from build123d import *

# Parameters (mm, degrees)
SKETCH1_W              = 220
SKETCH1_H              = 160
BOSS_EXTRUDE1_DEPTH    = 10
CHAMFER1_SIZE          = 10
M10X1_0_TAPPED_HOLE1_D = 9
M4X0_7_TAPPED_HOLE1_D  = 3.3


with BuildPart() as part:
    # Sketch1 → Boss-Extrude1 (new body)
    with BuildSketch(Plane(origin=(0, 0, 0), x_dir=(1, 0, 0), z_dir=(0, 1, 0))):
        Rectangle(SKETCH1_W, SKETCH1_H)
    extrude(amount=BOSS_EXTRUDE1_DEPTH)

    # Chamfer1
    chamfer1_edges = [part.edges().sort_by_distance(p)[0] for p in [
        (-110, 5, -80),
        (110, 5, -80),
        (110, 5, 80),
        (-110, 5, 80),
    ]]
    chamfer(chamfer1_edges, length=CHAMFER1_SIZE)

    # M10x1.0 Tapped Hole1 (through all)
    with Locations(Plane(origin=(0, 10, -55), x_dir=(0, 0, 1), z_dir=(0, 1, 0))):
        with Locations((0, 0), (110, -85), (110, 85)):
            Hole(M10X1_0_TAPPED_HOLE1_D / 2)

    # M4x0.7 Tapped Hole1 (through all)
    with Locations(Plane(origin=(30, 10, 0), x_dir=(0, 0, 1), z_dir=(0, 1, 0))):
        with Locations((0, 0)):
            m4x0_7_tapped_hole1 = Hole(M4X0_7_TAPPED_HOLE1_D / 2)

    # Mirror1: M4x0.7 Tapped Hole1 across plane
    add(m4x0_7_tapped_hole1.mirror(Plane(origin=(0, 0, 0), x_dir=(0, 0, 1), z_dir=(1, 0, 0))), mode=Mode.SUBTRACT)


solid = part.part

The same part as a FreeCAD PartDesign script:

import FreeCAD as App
import Part
import Sketcher
from FreeCAD import Vector


def edges_at(feature, points):
    """Names of the edges that pass closest to the given points."""
    edges = feature.Shape.Edges
    near = lambda p: min(range(len(edges)), key=lambda i: edges[i].distToShape(Part.Vertex(*p))[0])
    return sorted({f"Edge{near(p) + 1}" for p in points})


def add_polygon(sketch, points):
    """Adds a closed chain of lines whose ends are joined by coincident constraints."""
    first, n = sketch.GeometryCount, len(points)
    for a, b in zip(points, points[1:] + points[:1]):
        sketch.addGeometry(Part.LineSegment(App.Vector(*a, 0), App.Vector(*b, 0)), False)
    for i in range(n):
        sketch.addConstraint(Sketcher.Constraint("Coincident", first + i, 2, first + (i + 1) % n, 1))

doc = App.newDocument("Part")
params = doc.addObject("Spreadsheet::Sheet", "Params")
for row, (alias, value) in enumerate([
    ("sketch1_width", "220 mm"),
    ("sketch1_height", "160 mm"),
    ("pad1_length", "10 mm"),
    ("chamfer_size", "10 mm"),
    ("sketch2_diameter", "9 mm"),
    ("hole_diameter", "9 mm"),
    ("sketch3_diameter", "3.3 mm"),
    ("hole2_diameter", "3.3 mm"),
], start=1):
    params.set(f"A{row}", alias)
    params.set(f"B{row}", "=" + value)
    params.setAlias(f"B{row}", alias)

body = doc.addObject("PartDesign::Body", "Body")

# Sketch on XZ plane
sketch1 = body.newObject("Sketcher::SketchObject", "Sketch")
sketch1.AttachmentSupport = (doc.getObject("XZ_Plane"), [""])
sketch1.MapMode = "FlatFace"
add_polygon(sketch1, [(-110, -80), (-110, 80), (110, 80), (110, -80)])  # lines 0-3
sketch1.addConstraint(Sketcher.Constraint("Vertical", 0))
sketch1.addConstraint(Sketcher.Constraint("Horizontal", 1))
sketch1.addConstraint(Sketcher.Constraint("Vertical", 2))
sketch1.addConstraint(Sketcher.Constraint("Horizontal", 3))
sketch1.addConstraint(Sketcher.Constraint("Symmetric", 0, 2, 2, 2, -1, 1))
sketch1.addConstraint(Sketcher.Constraint("DistanceX", 1, 1, 1, 2, 220.0))
sketch1.addConstraint(Sketcher.Constraint("DistanceY", 0, 1, 0, 2, 160.0))
sketch1.setExpression("Constraints[9]", "Params.sketch1_width")
sketch1.setExpression("Constraints[10]", "Params.sketch1_height")
pad1 = body.newObject("PartDesign::Pad", "Pad")
pad1.Profile = sketch1
pad1.setExpression("Length", "Params.pad1_length")
pad1.Reversed = True
doc.recompute()

chamfer = body.newObject("PartDesign::Chamfer", "Chamfer")
chamfer.Base = (pad1, edges_at(pad1, [
    (-110, 5, -80),
    (110, 5, -80),
    (110, 5, 80),
    (-110, 5, 80),
]))
chamfer.setExpression("Size", "Params.chamfer_size")

# Sketch on XZ plane
sketch2 = body.newObject("Sketcher::SketchObject", "Sketch001")
sketch2.AttachmentSupport = (doc.getObject("XZ_Plane"), [""])
sketch2.MapMode = "FlatFace"
sketch2.AttachmentOffset = App.Placement(Vector(0, 0, -10), App.Rotation())
sketch2.addGeometry(Part.Circle(Vector(0, -55, 0), Vector(0, 0, 1), 4.5), False)
sketch2.addGeometry(Part.Circle(Vector(-85, 55, 0), Vector(0, 0, 1), 4.5), False)
sketch2.addGeometry(Part.Circle(Vector(85, 55, 0), Vector(0, 0, 1), 4.5), False)
sketch2.addConstraint(Sketcher.Constraint("Equal", 0, 1))
sketch2.addConstraint(Sketcher.Constraint("Equal", 1, 2))
sketch2.addConstraint(Sketcher.Constraint("Symmetric", 1, 3, 2, 3, -2))
sketch2.addConstraint(Sketcher.Constraint("PointOnObject", 0, 3, -2))
sketch2.addConstraint(Sketcher.Constraint("Diameter", 0, 9.0))
sketch2.addConstraint(Sketcher.Constraint("DistanceY", 0, 3, -1, 1, 55.0))
sketch2.addConstraint(Sketcher.Constraint("DistanceX", 1, 3, -1, 1, 85.0))
sketch2.addConstraint(Sketcher.Constraint("DistanceY", -1, 1, 1, 3, 55.0))
sketch2.setExpression("Constraints[4]", "Params.sketch2_diameter")
doc.recompute()
hole = body.newObject("PartDesign::Hole", "Hole")
hole.Profile = sketch2
hole.ThreadType = "None"
hole.setExpression("Diameter", "Params.hole_diameter")
hole.DepthType = "ThroughAll"
hole.Reversed = True

# Sketch on XZ plane
sketch3 = body.newObject("Sketcher::SketchObject", "Sketch002")
sketch3.AttachmentSupport = (doc.getObject("XZ_Plane"), [""])
sketch3.MapMode = "FlatFace"
sketch3.AttachmentOffset = App.Placement(Vector(0, 0, -10), App.Rotation())
sketch3.addGeometry(Part.Circle(Vector(30, 0, 0), Vector(0, 0, 1), 1.6), False)
sketch3.addConstraint(Sketcher.Constraint("PointOnObject", 0, 3, -1))
sketch3.addConstraint(Sketcher.Constraint("Diameter", 0, 3.3))
sketch3.addConstraint(Sketcher.Constraint("DistanceX", -1, 1, 0, 3, 30.0))
sketch3.setExpression("Constraints[1]", "Params.sketch3_diameter")
doc.recompute()
hole2 = body.newObject("PartDesign::Hole", "Hole001")
hole2.Profile = sketch3
hole2.ThreadType = "None"
hole2.setExpression("Diameter", "Params.hole2_diameter")
hole2.DepthType = "ThroughAll"
hole2.Reversed = True
doc.recompute()

mirrored = body.newObject("PartDesign::Mirrored", "Mirrored")
mirrored.Originals = [hole2]
mirrored.MirrorPlane = (doc.getObject("YZ_Plane"), [""])
body.Tip = mirrored

doc.recompute()
